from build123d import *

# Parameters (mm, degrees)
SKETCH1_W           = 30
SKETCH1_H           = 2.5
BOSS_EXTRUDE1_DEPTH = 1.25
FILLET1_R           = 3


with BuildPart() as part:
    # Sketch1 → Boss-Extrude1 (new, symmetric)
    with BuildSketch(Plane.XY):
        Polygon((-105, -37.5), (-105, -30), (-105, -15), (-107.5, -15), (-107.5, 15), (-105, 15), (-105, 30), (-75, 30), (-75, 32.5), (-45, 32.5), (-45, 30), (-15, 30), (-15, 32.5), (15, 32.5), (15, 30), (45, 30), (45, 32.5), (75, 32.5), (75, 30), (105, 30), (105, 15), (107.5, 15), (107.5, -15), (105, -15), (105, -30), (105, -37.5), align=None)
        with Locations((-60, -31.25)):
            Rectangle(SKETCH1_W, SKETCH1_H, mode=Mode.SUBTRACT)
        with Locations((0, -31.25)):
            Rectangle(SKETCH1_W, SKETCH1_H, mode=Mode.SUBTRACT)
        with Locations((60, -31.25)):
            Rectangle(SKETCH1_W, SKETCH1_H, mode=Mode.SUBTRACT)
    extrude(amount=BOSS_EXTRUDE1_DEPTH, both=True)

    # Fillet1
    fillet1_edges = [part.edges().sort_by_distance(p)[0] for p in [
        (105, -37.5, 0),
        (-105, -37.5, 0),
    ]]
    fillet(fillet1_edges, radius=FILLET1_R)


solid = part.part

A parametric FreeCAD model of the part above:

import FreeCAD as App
import Part
import Sketcher
from FreeCAD import Vector


def edges_at(feature, points):
    """Names of the edges that pass closest to the given points."""
    edges = feature.Shape.Edges
    near = lambda p: min(range(len(edges)), key=lambda i: edges[i].distToShape(Part.Vertex(*p))[0])
    return sorted({f"Edge{near(p) + 1}" for p in points})


def add_polygon(sketch, points):
    """Adds a closed chain of lines whose ends are joined by coincident constraints."""
    first, n = sketch.GeometryCount, len(points)
    for a, b in zip(points, points[1:] + points[:1]):
        sketch.addGeometry(Part.LineSegment(App.Vector(*a, 0), App.Vector(*b, 0)), False)
    for i in range(n):
        sketch.addConstraint(Sketcher.Constraint("Coincident", first + i, 2, first + (i + 1) % n, 1))

doc = App.newDocument("Part")
body = doc.addObject("PartDesign::Body", "Body")

sketch1 = body.newObject("Sketcher::SketchObject", "Sketch")
sketch1.AttachmentSupport = (doc.getObject("XY_Plane"), [""])
sketch1.MapMode = "FlatFace"
add_polygon(sketch1, [(-105, -15), (-105, -37.5), (105, -37.5), (105, -15), (107.5, -15), (107.5, 15), (105, 15), (105, 30), (75, 30), (75, 32.5), (45, 32.5), (45, 30), (15, 30), (15, 32.5), (-15, 32.5), (-15, 30), (-45, 30), (-45, 32.5), (-75, 32.5), (-75, 30), (-105, 30), (-105, 15), (-107.5, 15), (-107.5, -15)])
add_polygon(sketch1, [(45, -32.5), (45, -30), (75, -30), (75, -32.5)])
add_polygon(sketch1, [(-15, -32.5), (-15, -30), (15, -30), (15, -32.5)])
add_polygon(sketch1, [(-75, -32.5), (-75, -30), (-45, -30), (-45, -32.5)])
sketch1.addConstraint([
    Sketcher.Constraint("Vertical", 0),
    Sketcher.Constraint("Horizontal", 1),
    Sketcher.Constraint("Vertical", 2),
    Sketcher.Constraint("Horizontal", 3),
    Sketcher.Constraint("Vertical", 4),
    Sketcher.Constraint("Horizontal", 5),
    Sketcher.Constraint("Vertical", 6),
    Sketcher.Constraint("Horizontal", 7),
    Sketcher.Constraint("Vertical", 8),
    Sketcher.Constraint("Horizontal", 9),
    Sketcher.Constraint("Vertical", 10),
    Sketcher.Constraint("Horizontal", 11),
    Sketcher.Constraint("Vertical", 12),
    Sketcher.Constraint("Horizontal", 13),
    Sketcher.Constraint("Vertical", 14),
    Sketcher.Constraint("Horizontal", 15),
    Sketcher.Constraint("Vertical", 16),
    Sketcher.Constraint("Horizontal", 17),
    Sketcher.Constraint("Vertical", 18),
    Sketcher.Constraint("Horizontal", 19),
    Sketcher.Constraint("Vertical", 20),
    Sketcher.Constraint("Horizontal", 21),
    Sketcher.Constraint("Vertical", 22),
    Sketcher.Constraint("Horizontal", 23),
    Sketcher.Constraint("Vertical", 24),
    Sketcher.Constraint("Horizontal", 25),
    Sketcher.Constraint("Vertical", 26),
    Sketcher.Constraint("Horizontal", 27),
    Sketcher.Constraint("Vertical", 28),
    Sketcher.Constraint("Horizontal", 29),
    Sketcher.Constraint("Vertical", 30),
    Sketcher.Constraint("Horizontal", 31),
    Sketcher.Constraint("Vertical", 32),
    Sketcher.Constraint("Horizontal", 33),
    Sketcher.Constraint("Vertical", 34),
    Sketcher.Constraint("Horizontal", 35),
    Sketcher.Constraint("Symmetric", 2, 2, 20, 2, -1, 1),
    Sketcher.Constraint("Symmetric", 4, 2, 22, 2, -1, 1),
    Sketcher.Constraint("Symmetric", 15, 2, 24, 2, -1, 1),
    Sketcher.Constraint("Symmetric", 18, 2, 25, 2, -1, 1),
    Sketcher.Constraint("Symmetric", 11, 2, 28, 2, -1, 1),
    Sketcher.Constraint("Symmetric", 14, 2, 29, 2, -1, 1),
    Sketcher.Constraint("Symmetric", 7, 2, 32, 2, -1, 1),
    Sketcher.Constraint("Symmetric", 10, 2, 33, 2, -1, 1),
    Sketcher.Constraint("Symmetric", 9, 2, 16, 2, -2),
    Sketcher.Constraint("Symmetric", 5, 2, 20, 2, -2),
    Sketcher.Constraint("Symmetric", 26, 2, 35, 2, -2),
    Sketcher.Constraint("Symmetric", 12, 2, 30, 2, -1),
    Sketcher.Constraint("Horizontal", 9, 2, 12, 2),
    Sketcher.Constraint("Horizontal", 27, 2, 30, 2),
    Sketcher.Constraint("Vertical", 0, 2, 19, 2),
    Sketcher.Constraint("Equal", 7, 9),
    Sketcher.Constraint("Equal", 9, 11),
    Sketcher.Constraint("Equal", 11, 13),
    Sketcher.Constraint("Equal", 35, 4),
    Sketcher.Constraint("Equal", 23, 8),
    Sketcher.Constraint("DistanceX", 1, 1, 1, 2, 210.0),
    Sketcher.Constraint("DistanceY", 6, 1, 6, 2, 15.0),
    Sketcher.Constraint("DistanceX", 3, 1, 3, 2, 2.5),
    Sketcher.Constraint("DistanceY", 0, 2, 0, 1, 22.5),
])
pad1 = body.newObject("PartDesign::Pad", "Pad")
pad1.Profile = sketch1
pad1.Length = 2.5
pad1.Midplane = True
doc.recompute()

fillet = body.newObject("PartDesign::Fillet", "Fillet")
fillet.Base = (pad1, edges_at(pad1, [(105, -37.5, 0), (-105, -37.5, 0)]))
fillet.Radius = 3

doc.recompute()
